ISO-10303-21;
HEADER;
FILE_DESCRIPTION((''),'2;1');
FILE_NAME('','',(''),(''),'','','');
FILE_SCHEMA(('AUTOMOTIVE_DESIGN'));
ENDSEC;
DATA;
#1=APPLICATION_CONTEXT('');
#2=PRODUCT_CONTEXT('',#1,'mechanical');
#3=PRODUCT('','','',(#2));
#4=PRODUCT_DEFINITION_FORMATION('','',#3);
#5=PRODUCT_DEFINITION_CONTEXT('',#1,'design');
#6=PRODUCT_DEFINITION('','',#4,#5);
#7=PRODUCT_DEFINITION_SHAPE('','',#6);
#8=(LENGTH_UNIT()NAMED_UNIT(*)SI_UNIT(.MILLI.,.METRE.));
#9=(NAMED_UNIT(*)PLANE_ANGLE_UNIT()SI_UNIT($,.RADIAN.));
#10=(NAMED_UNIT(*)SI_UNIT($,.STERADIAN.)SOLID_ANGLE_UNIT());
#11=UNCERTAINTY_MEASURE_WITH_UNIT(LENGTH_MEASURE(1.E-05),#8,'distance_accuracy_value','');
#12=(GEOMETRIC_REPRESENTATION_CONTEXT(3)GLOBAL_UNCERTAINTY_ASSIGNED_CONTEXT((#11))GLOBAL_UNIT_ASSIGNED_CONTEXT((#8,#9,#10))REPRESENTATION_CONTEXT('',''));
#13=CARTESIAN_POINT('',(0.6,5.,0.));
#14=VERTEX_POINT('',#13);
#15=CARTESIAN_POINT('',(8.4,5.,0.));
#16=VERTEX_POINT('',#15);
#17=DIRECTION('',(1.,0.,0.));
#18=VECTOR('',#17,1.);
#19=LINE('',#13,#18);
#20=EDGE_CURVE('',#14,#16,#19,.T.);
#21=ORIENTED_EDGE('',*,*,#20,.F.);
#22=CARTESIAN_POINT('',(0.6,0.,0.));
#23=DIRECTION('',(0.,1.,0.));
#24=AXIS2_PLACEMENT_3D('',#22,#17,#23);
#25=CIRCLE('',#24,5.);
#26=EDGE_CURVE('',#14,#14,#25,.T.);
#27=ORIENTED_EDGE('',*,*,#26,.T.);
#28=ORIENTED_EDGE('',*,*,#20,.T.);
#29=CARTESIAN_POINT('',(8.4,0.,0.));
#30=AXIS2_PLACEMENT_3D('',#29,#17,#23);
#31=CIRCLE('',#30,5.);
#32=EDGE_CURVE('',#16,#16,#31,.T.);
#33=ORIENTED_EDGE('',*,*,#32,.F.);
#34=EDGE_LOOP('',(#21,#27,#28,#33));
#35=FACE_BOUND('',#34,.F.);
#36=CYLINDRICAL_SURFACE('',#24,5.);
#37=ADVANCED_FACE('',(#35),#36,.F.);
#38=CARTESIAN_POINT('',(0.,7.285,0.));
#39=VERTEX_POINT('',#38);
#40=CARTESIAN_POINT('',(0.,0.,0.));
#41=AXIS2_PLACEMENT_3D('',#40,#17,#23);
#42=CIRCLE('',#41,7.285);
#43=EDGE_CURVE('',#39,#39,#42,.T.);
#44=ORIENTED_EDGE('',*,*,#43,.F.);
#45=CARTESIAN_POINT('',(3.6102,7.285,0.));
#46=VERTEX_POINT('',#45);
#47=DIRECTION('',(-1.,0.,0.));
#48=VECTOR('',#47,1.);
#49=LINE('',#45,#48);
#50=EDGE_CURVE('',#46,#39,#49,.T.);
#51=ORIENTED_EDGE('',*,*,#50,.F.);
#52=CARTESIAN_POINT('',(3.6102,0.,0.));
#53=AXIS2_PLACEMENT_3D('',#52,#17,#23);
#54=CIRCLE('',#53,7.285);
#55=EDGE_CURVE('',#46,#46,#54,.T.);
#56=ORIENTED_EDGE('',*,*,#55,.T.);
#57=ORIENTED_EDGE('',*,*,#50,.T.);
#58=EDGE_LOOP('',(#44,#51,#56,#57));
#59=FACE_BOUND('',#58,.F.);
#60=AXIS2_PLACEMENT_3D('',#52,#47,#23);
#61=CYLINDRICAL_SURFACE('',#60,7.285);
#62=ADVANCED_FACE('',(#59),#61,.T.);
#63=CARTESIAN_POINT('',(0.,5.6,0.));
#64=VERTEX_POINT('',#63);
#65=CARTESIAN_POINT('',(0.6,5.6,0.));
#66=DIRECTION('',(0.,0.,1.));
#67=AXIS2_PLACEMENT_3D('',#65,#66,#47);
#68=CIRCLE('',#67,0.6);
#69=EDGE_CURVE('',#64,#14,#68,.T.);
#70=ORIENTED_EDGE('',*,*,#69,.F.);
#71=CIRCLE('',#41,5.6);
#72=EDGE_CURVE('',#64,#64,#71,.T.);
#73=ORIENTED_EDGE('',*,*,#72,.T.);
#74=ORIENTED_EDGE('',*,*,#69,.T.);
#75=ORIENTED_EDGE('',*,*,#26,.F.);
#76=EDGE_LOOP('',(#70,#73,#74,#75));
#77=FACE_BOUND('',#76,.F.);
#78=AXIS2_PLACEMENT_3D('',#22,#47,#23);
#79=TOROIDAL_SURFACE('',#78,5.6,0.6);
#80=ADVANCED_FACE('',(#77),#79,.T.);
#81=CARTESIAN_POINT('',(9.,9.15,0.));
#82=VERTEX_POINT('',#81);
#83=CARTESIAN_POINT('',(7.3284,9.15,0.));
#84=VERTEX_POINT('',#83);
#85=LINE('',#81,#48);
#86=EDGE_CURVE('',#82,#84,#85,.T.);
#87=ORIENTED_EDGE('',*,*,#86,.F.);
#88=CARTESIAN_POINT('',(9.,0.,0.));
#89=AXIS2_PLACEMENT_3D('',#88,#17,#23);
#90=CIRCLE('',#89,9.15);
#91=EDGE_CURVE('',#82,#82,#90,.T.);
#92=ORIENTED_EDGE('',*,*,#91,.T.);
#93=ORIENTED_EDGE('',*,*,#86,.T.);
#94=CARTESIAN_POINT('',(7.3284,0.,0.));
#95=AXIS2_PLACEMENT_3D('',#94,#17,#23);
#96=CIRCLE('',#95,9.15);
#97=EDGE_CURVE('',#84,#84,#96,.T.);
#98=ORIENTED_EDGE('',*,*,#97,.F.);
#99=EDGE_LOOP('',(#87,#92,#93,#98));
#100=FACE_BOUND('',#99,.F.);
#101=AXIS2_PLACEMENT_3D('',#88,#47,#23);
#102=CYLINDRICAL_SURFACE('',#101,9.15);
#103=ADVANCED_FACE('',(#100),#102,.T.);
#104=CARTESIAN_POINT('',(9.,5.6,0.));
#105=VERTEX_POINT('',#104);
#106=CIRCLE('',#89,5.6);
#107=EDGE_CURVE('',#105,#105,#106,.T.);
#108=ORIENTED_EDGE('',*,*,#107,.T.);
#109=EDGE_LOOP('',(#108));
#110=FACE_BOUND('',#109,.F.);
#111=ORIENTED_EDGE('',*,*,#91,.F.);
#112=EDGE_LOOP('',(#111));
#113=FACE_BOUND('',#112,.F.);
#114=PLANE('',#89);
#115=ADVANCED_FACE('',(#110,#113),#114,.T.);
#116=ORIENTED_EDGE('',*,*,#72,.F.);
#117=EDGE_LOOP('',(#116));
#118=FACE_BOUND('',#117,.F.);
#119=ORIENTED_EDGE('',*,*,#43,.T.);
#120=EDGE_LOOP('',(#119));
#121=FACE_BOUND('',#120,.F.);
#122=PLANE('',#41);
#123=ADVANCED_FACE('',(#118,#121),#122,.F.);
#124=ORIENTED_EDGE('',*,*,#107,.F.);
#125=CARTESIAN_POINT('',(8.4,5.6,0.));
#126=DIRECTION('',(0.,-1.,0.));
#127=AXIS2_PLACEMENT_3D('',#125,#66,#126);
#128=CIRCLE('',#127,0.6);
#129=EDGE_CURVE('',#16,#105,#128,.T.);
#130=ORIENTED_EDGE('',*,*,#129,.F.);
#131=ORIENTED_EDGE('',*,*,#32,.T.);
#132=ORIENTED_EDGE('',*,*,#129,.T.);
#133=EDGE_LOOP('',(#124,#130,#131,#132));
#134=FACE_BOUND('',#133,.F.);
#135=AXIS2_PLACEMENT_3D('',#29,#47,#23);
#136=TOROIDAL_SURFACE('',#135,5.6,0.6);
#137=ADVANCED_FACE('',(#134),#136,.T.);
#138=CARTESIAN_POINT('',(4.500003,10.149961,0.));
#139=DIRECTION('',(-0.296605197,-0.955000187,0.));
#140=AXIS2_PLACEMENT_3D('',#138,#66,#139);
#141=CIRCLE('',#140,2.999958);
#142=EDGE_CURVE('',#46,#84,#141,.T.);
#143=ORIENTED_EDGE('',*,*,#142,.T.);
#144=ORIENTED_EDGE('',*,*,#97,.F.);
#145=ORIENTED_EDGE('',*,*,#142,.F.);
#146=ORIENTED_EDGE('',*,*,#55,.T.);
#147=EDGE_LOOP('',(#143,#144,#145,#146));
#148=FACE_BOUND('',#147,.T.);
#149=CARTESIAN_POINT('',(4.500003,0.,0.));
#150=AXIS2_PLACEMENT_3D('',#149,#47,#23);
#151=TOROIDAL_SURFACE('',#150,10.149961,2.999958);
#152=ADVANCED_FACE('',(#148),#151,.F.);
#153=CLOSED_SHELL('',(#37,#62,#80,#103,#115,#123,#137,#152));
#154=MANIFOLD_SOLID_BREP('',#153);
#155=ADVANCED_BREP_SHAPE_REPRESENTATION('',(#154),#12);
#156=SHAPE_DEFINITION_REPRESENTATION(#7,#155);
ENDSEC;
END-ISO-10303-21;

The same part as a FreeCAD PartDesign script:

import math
import FreeCAD as App
import Part
import Sketcher

V = App.Vector
Q = App.Units.Quantity

doc = App.newDocument("Part")
body = doc.addObject("PartDesign::Body", "Body")

# Sketch on XY plane
sketch1 = body.newObject("Sketcher::SketchObject", "Sketch")
sketch1.AttachmentSupport = (doc.getObject("XY_Plane"), [""])
sketch1.MapMode = "FlatFace"
sketch1.addGeometry(Part.LineSegment(V(3.6, 7.3, 0), V(0, 7.3, 0)), False)
sketch1.addGeometry(Part.LineSegment(V(0, 7.3, 0), V(0, 5.6, 0)), False)
sketch1.addGeometry(Part.ArcOfCircle(Part.Circle(V(0.6, 5.6, 0), V(0, 0, 1), 0.6), math.radians(180), math.radians(270)), False)
sketch1.addGeometry(Part.LineSegment(V(0.6, 5, 0), V(8.4, 5, 0)), False)
sketch1.addGeometry(Part.ArcOfCircle(Part.Circle(V(8.4, 5.6, 0), V(0, 0, 1), 0.6), math.radians(-90), math.radians(0)), False)
sketch1.addGeometry(Part.LineSegment(V(9, 5.6, 0), V(9, 9.2, 0)), False)
sketch1.addGeometry(Part.LineSegment(V(9, 9.2, 0), V(7.3, 9.2, 0)), False)
sketch1.addGeometry(Part.ArcOfCircle(Part.Circle(V(4.5, 10.2, 0), V(0, 0, 1), 3), math.radians(-107), math.radians(-19)), False)
sketch1.addConstraint(Sketcher.Constraint("Coincident", 0, 2, 1, 1))
sketch1.addConstraint(Sketcher.Constraint("Tangent", 1, 2, 2, 1))
sketch1.addConstraint(Sketcher.Constraint("Tangent", 2, 2, 3, 1))
sketch1.addConstraint(Sketcher.Constraint("Tangent", 3, 2, 4, 1))
sketch1.addConstraint(Sketcher.Constraint("Tangent", 4, 2, 5, 1))
sketch1.addConstraint(Sketcher.Constraint("Coincident", 5, 2, 6, 1))
sketch1.addConstraint(Sketcher.Constraint("Coincident", 6, 2, 7, 2))
sketch1.addConstraint(Sketcher.Constraint("Coincident", 7, 1, 0, 1))
sketch1.addConstraint(Sketcher.Constraint("Horizontal", 0))
sketch1.addConstraint(Sketcher.Constraint("Vertical", 1))
sketch1.addConstraint(Sketcher.Constraint("Horizontal", 3))
sketch1.addConstraint(Sketcher.Constraint("Vertical", 5))
sketch1.addConstraint(Sketcher.Constraint("Horizontal", 6))
sketch1.addConstraint(Sketcher.Constraint("Equal", 2, 4))
sketch1.addConstraint(Sketcher.Constraint("PointOnObject", 0, 2, -2))
sketch1.addConstraint(Sketcher.Constraint("Radius", 7, Q("3 mm")))
sketch1.addConstraint(Sketcher.Constraint("Radius", 2, Q("0.6 mm")))
sketch1.addConstraint(Sketcher.Constraint("DistanceX", 3, 1, 3, 2, Q("7.8 mm")))
sketch1.addConstraint(Sketcher.Constraint("DistanceY", -1, 1, 2, 2, Q("5 mm")))
sketch1.addConstraint(Sketcher.Constraint("DistanceY", 5, 2, 7, 3, Q("1 mm")))
sketch1.addConstraint(Sketcher.Constraint("DistanceY", 5, 1, 5, 2, Q("3.55 mm")))
sketch1.addConstraint(Sketcher.Constraint("DistanceX", -1, 1, 7, 3, Q("4.5 mm")))
sketch1.addConstraint(Sketcher.Constraint("DistanceY", 1, 2, 1, 1, Q("1.685 mm")))
revolution = body.newObject("PartDesign::Revolution", "Revolution")
revolution.Profile = sketch1
revolution.ReferenceAxis = (sketch1, ["H_Axis"])
revolution.Angle = 360

doc.recompute()
